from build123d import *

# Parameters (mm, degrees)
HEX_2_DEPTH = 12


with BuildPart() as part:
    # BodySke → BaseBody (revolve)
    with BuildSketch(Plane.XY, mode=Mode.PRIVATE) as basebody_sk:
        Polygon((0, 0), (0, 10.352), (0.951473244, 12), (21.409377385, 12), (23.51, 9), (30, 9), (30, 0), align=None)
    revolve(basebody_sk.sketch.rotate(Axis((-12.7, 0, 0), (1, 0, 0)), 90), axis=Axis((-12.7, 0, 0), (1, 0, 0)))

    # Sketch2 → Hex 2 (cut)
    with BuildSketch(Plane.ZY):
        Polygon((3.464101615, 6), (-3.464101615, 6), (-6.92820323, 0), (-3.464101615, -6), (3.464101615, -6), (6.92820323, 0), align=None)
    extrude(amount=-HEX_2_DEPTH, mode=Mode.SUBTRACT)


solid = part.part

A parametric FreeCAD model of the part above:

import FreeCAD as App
import Part
import Sketcher
from FreeCAD import Vector
Q = App.Units.Quantity

doc = App.newDocument("Part")
body = doc.addObject("PartDesign::Body", "Body")

sketch1 = doc.addObject("Sketcher::SketchObject", "Sketch")
body.addObject(sketch1)
sketch1.AttachmentSupport = (doc.XY_Plane, [""])
sketch1.MapMode = "FlatFace"
sketch1.addGeometry(Part.LineSegment(Vector(0, 10.4, 0), Vector(0, 0, 0)), False)
sketch1.addGeometry(Part.LineSegment(Vector(0, 0, 0), Vector(30, 0, 0)), False)
sketch1.addGeometry(Part.LineSegment(Vector(30, 0, 0), Vector(30, 9, 0)), False)
sketch1.addGeometry(Part.LineSegment(Vector(30, 9, 0), Vector(23.5, 9, 0)), False)
sketch1.addGeometry(Part.LineSegment(Vector(23.5, 9, 0), Vector(21.4, 12, 0)), False)
sketch1.addGeometry(Part.LineSegment(Vector(21.4, 12, 0), Vector(1, 12, 0)), False)
sketch1.addGeometry(Part.LineSegment(Vector(1, 12, 0), Vector(0, 10.4, 0)), False)
sketch1.addConstraint(Sketcher.Constraint("Coincident", 0, 2, 1, 1))
sketch1.addConstraint(Sketcher.Constraint("Coincident", 1, 2, 2, 1))
sketch1.addConstraint(Sketcher.Constraint("Coincident", 2, 2, 3, 1))
sketch1.addConstraint(Sketcher.Constraint("Coincident", 3, 2, 4, 1))
sketch1.addConstraint(Sketcher.Constraint("Coincident", 4, 2, 5, 1))
sketch1.addConstraint(Sketcher.Constraint("Coincident", 5, 2, 6, 1))
sketch1.addConstraint(Sketcher.Constraint("Coincident", 6, 2, 0, 1))
sketch1.addConstraint(Sketcher.Constraint("Vertical", 0))
sketch1.addConstraint(Sketcher.Constraint("Horizontal", 1))
sketch1.addConstraint(Sketcher.Constraint("Vertical", 2))
sketch1.addConstraint(Sketcher.Constraint("Horizontal", 3))
sketch1.addConstraint(Sketcher.Constraint("Horizontal", 5))
sketch1.addConstraint(Sketcher.Constraint("Coincident", 0, 2, -1, 1))
sketch1.addConstraint(Sketcher.Constraint("DistanceX", 1, 1, 1, 2, Q("30 mm")))
sketch1.addConstraint(Sketcher.Constraint("DistanceY", 2, 1, 2, 2, Q("9 mm")))
sketch1.addConstraint(Sketcher.Constraint("Angle", 4, Q("125 deg")))
sketch1.addConstraint(Sketcher.Constraint("Angle", 6, Q("-120 deg")))
sketch1.addConstraint(Sketcher.Constraint("DistanceY", -1, 1, 4, 2, Q("12 mm")))
sketch1.addConstraint(Sketcher.Constraint("DistanceX", 3, 2, 3, 1, Q("6.49 mm")))
sketch1.addConstraint(Sketcher.Constraint("DistanceY", 0, 2, 0, 1, Q("10.352 mm")))
revolution = doc.addObject("PartDesign::Revolution", "Revolution")
body.addObject(revolution)
revolution.Profile = sketch1
revolution.ReferenceAxis = (sketch1, ["H_Axis"])
revolution.Angle = 360

sketch2 = doc.addObject("Sketcher::SketchObject", "Sketch001")
body.addObject(sketch2)
sketch2.AttachmentSupport = (doc.YZ_Plane, [""])
sketch2.MapMode = "FlatFace"
sketch2.addGeometry(Part.LineSegment(Vector(6, 3, 0), Vector(6, -3, 0)), False)
sketch2.addGeometry(Part.LineSegment(Vector(6, -3, 0), Vector(0, -7, 0)), False)
sketch2.addGeometry(Part.LineSegment(Vector(0, -7, 0), Vector(-6, -3, 0)), False)
sketch2.addGeometry(Part.LineSegment(Vector(-6, -3, 0), Vector(-6, 3, 0)), False)
sketch2.addGeometry(Part.LineSegment(Vector(-6, 3, 0), Vector(0, 7, 0)), False)
sketch2.addGeometry(Part.LineSegment(Vector(0, 7, 0), Vector(6, 3, 0)), False)
sketch2.addConstraint(Sketcher.Constraint("Coincident", 0, 2, 1, 1))
sketch2.addConstraint(Sketcher.Constraint("Coincident", 1, 2, 2, 1))
sketch2.addConstraint(Sketcher.Constraint("Coincident", 2, 2, 3, 1))
sketch2.addConstraint(Sketcher.Constraint("Coincident", 3, 2, 4, 1))
sketch2.addConstraint(Sketcher.Constraint("Coincident", 4, 2, 5, 1))
sketch2.addConstraint(Sketcher.Constraint("Coincident", 5, 2, 0, 1))
sketch2.addConstraint(Sketcher.Constraint("Vertical", 0))
sketch2.addConstraint(Sketcher.Constraint("Vertical", 3))
sketch2.addConstraint(Sketcher.Constraint("Symmetric", 0, 2, 3, 2, -1, 1))
sketch2.addConstraint(Sketcher.Constraint("Symmetric", 1, 2, 4, 2, -1, 1))
sketch2.addConstraint(Sketcher.Constraint("PointOnObject", 1, 2, -2))
sketch2.addConstraint(Sketcher.Constraint("Parallel", 2, 5))
sketch2.addConstraint(Sketcher.Constraint("Horizontal", 0, 2, 2, 2))
sketch2.addConstraint(Sketcher.Constraint("Angle", 1, Q("-150 deg")))
sketch2.addConstraint(Sketcher.Constraint("DistanceX", -1, 1, 0, 2, Q("6 mm")))
sketch2.addConstraint(Sketcher.Constraint("DistanceY", 0, 2, -1, 1, Q("3.464102 mm")))
pocket1 = doc.addObject("PartDesign::Pocket", "Pocket")
body.addObject(pocket1)
pocket1.Profile = sketch2
pocket1.Length = 12
pocket1.Reversed = True

doc.recompute()
